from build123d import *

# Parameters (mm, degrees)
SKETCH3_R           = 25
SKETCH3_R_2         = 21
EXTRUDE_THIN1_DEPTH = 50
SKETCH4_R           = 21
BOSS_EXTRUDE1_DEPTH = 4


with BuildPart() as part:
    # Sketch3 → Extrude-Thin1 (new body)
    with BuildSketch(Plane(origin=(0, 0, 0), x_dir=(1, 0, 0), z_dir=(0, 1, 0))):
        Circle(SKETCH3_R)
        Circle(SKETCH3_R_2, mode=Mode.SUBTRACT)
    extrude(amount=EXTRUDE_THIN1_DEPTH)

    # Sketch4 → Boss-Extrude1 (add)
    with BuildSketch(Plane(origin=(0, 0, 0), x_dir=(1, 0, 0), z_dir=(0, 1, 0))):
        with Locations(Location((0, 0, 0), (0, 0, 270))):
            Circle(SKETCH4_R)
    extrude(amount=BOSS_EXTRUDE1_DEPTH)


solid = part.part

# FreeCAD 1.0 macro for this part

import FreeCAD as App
import Part
import Sketcher
from FreeCAD import Vector
Q = App.Units.Quantity

doc = App.newDocument("Part")
body = doc.addObject("PartDesign::Body", "Body")

sketch1 = body.newObject("Sketcher::SketchObject", "Sketch")
sketch1.AttachmentSupport = (doc.getObject("XZ_Plane"), [""])
sketch1.MapMode = "FlatFace"
sketch1.addGeometry([
    Part.Circle(Vector(0, 0, 0), Vector(0, 0, 1), 25),
    Part.Circle(Vector(0, 0, 0), Vector(0, 0, 1), 21),
], False)
sketch1.addConstraint([
    Sketcher.Constraint("Coincident", 0, 3, -1, 1),
    Sketcher.Constraint("Coincident", 1, 3, -1, 1),
    Sketcher.Constraint("Diameter", 0, Q("50 mm")),
    Sketcher.Constraint("Diameter", 1, Q("42 mm")),
])
pad1 = body.newObject("PartDesign::Pad", "Pad")
pad1.Profile = sketch1
pad1.Length = 50
pad1.Reversed = True

sketch2 = body.newObject("Sketcher::SketchObject", "Sketch001")
sketch2.AttachmentSupport = (doc.getObject("XZ_Plane"), [""])
sketch2.MapMode = "FlatFace"
sketch2.addGeometry(Part.Circle(Vector(0, 0, 0), Vector(0, 0, 1), 21), False)
sketch2.addConstraint([
    Sketcher.Constraint("Coincident", 0, 3, -1, 1),
    Sketcher.Constraint("Diameter", 0, Q("42 mm")),
])
pad2 = body.newObject("PartDesign::Pad", "Pad001")
pad2.Profile = sketch2
pad2.Length = 4
pad2.Reversed = True

doc.recompute()
